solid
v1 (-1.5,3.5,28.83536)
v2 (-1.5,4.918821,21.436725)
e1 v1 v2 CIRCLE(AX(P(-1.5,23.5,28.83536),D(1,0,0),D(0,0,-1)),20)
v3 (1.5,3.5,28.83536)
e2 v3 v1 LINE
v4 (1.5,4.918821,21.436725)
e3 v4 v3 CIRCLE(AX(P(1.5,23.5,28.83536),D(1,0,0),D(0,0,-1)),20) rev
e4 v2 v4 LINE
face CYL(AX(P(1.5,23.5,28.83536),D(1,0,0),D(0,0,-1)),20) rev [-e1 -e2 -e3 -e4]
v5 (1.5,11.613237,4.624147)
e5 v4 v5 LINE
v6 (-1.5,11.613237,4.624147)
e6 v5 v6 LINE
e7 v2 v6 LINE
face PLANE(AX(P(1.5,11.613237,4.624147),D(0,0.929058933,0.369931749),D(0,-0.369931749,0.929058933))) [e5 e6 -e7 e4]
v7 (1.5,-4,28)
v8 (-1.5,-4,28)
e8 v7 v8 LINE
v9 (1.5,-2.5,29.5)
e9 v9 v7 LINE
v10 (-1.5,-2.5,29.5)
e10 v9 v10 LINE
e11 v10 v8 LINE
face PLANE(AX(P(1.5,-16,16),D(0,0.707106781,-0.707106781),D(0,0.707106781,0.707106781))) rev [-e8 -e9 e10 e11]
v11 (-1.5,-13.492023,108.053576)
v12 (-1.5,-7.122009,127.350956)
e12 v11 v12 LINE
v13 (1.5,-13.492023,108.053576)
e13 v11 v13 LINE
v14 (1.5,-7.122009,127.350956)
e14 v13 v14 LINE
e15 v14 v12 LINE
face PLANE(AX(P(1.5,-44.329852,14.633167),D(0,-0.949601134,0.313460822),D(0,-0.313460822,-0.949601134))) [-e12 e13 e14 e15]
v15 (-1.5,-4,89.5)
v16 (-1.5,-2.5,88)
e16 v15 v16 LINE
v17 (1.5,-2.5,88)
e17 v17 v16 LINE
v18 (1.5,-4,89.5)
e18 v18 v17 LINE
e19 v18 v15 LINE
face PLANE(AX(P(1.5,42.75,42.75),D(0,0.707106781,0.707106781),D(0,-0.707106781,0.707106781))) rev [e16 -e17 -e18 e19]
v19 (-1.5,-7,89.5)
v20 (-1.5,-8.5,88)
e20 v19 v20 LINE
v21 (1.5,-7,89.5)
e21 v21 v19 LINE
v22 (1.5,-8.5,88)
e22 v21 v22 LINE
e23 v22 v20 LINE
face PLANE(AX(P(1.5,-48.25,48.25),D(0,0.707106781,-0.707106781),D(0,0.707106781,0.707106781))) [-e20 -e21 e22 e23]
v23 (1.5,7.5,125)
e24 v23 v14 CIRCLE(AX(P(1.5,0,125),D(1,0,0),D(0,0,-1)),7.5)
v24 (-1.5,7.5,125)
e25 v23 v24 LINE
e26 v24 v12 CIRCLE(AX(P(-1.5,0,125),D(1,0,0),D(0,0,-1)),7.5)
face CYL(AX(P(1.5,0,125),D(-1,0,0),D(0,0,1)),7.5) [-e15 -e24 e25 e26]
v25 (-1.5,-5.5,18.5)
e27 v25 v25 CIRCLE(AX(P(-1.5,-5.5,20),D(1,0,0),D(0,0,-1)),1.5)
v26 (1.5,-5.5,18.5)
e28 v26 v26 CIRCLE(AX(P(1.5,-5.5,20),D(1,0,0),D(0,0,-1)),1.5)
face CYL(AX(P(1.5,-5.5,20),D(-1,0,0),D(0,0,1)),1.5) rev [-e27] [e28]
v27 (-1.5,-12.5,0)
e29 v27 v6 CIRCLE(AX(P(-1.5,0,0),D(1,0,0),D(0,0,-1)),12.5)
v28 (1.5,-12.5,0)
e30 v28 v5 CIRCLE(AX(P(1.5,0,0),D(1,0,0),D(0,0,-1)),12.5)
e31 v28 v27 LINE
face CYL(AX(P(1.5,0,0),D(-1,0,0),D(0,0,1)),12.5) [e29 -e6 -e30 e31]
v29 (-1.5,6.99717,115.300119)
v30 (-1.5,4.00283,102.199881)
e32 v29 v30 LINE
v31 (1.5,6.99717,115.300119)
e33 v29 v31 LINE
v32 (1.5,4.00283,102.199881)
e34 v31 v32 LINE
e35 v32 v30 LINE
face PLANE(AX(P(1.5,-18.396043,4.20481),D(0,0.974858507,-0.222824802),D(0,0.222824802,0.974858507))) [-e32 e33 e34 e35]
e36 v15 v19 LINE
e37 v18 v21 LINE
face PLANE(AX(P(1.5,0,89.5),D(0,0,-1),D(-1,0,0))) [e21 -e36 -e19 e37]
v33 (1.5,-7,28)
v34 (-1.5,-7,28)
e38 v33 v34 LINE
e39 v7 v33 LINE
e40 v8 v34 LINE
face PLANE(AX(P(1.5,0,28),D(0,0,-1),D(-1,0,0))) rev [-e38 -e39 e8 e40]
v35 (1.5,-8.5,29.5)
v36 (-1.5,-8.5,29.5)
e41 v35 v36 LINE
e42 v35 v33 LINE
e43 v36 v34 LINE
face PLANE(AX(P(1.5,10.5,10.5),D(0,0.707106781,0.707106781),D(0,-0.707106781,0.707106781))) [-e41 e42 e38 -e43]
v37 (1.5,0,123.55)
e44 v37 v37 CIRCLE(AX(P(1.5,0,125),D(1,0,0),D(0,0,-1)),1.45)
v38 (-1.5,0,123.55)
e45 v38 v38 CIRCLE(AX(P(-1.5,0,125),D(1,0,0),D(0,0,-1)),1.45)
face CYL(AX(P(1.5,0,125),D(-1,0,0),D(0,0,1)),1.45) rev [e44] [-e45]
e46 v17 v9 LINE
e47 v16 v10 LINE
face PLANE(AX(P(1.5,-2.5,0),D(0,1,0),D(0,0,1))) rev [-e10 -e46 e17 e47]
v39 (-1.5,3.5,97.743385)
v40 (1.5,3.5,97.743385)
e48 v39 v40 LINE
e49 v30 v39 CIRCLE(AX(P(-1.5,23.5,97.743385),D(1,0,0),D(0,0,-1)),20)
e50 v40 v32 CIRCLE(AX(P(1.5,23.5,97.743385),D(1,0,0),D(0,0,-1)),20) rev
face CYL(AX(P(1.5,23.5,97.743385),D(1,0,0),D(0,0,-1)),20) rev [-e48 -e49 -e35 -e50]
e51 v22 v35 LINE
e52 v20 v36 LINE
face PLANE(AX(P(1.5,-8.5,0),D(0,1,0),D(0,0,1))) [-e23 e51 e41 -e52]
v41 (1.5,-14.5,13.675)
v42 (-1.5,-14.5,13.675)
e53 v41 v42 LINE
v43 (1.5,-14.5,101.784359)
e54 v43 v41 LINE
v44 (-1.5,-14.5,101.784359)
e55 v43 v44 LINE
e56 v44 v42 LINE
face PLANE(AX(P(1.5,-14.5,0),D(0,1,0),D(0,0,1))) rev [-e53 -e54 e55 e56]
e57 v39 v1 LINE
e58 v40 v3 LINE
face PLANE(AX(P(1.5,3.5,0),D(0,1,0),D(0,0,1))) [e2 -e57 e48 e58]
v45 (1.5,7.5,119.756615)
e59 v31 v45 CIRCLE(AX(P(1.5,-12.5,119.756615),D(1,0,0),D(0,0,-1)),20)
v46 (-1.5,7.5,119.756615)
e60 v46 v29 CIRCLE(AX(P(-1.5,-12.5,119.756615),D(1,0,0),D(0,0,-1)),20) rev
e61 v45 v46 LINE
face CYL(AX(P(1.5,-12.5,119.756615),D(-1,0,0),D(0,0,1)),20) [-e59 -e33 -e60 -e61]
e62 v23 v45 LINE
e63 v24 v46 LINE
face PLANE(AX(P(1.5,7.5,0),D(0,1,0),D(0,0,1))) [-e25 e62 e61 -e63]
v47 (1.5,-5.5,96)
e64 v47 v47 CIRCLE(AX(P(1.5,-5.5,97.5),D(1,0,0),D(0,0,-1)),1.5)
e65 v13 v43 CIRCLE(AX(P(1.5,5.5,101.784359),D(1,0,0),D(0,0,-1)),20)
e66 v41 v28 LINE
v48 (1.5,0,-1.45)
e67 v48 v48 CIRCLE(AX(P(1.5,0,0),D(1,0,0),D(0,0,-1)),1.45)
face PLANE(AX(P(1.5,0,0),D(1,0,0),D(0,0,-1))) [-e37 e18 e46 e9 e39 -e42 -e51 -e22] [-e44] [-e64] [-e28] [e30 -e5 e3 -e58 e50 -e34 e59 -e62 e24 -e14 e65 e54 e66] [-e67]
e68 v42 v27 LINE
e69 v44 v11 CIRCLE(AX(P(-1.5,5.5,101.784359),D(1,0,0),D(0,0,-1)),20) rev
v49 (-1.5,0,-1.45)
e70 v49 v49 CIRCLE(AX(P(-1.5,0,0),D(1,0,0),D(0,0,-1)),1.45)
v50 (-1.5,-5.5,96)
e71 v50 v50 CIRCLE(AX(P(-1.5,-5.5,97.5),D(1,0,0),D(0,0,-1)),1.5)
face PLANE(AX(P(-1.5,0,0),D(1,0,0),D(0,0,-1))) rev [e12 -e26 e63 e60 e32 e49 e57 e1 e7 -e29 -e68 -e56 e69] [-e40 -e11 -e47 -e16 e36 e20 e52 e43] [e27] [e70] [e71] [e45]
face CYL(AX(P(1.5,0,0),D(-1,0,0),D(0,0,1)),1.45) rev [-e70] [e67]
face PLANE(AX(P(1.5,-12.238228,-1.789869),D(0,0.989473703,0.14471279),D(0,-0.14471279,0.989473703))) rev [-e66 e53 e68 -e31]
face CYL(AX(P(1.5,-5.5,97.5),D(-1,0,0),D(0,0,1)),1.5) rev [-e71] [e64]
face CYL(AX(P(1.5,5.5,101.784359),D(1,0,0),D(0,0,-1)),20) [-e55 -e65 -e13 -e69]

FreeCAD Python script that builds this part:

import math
import FreeCAD as App
import Part
import Sketcher

V = App.Vector


def edges_at(feature, points):
    """Names of the edges that pass closest to the given points."""
    edges = feature.Shape.Edges
    near = lambda p: min(range(len(edges)), key=lambda i: edges[i].distToShape(Part.Vertex(*p))[0])
    return sorted({f"Edge{near(p) + 1}" for p in points})

doc = App.newDocument("Part")
body = doc.addObject("PartDesign::Body", "Body")

# Sketch on YZ plane
sketch1 = body.newObject("Sketcher::SketchObject", "Sketch")
sketch1.AttachmentSupport = (doc.getObject("YZ_Plane"), [""])
sketch1.MapMode = "FlatFace"
sketch1.addGeometry([
    Part.LineSegment(V(-7.1, 127.4, 0), V(-14.5, 105, 0)),  # 0
    Part.LineSegment(V(-14.5, 105, 0), V(-14.5, 13.7, 0)),  # 1
    Part.LineSegment(V(-14.5, 13.7, 0), V(-12.5, 0, 0)),  # 2
    Part.ArcOfCircle(Part.Circle(V(0, 0, 0), V(0, 0, 1), 12.5), math.radians(180), math.radians(382)),  # 3
    Part.LineSegment(V(11.6, 4.6, 0), V(3.5, 25, 0)),  # 4
    Part.LineSegment(V(3.5, 25, 0), V(3.5, 100, 0)),  # 5
    Part.LineSegment(V(3.5, 100, 0), V(7.5, 117.5, 0)),  # 6
    Part.LineSegment(V(7.5, 117.5, 0), V(7.5, 125, 0)),  # 7
    Part.ArcOfCircle(Part.Circle(V(0, 125, 0), V(0, 0, 1), 7.5), math.radians(0), math.radians(162)),  # 8
    Part.Circle(V(-5.5, 97.5, 0), V(0, 0, 1), 1.5),  # 9
    Part.LineSegment(V(-8.5, 88, 0), V(-7, 89.5, 0)),  # 10
    Part.LineSegment(V(-7, 89.5, 0), V(-4, 89.5, 0)),  # 11
    Part.LineSegment(V(-4, 89.5, 0), V(-2.5, 88, 0)),  # 12
    Part.LineSegment(V(-2.5, 88, 0), V(-2.5, 29.5, 0)),  # 13
    Part.LineSegment(V(-2.5, 29.5, 0), V(-4, 28, 0)),  # 14
    Part.LineSegment(V(-4, 28, 0), V(-7, 28, 0)),  # 15
    Part.LineSegment(V(-7, 28, 0), V(-8.5, 29.5, 0)),  # 16
    Part.LineSegment(V(-8.5, 29.5, 0), V(-8.5, 88, 0)),  # 17
    Part.Circle(V(-5.5, 20, 0), V(0, 0, 1), 1.5),  # 18
    Part.Circle(V(0, 125, 0), V(0, 0, 1), 1.4),  # 19
    Part.Circle(V(0, 0, 0), V(0, 0, 1), 1.4),  # 20
], False)
sketch1.addConstraint([
    Sketcher.Constraint("Coincident", 0, 2, 1, 1),
    Sketcher.Constraint("Coincident", 1, 2, 2, 1),
    Sketcher.Constraint("Coincident", 2, 2, 3, 1),
    Sketcher.Constraint("Tangent", 3, 2, 4, 1),
    Sketcher.Constraint("Coincident", 4, 2, 5, 1),
    Sketcher.Constraint("Coincident", 5, 2, 6, 1),
    Sketcher.Constraint("Coincident", 6, 2, 7, 1),
    Sketcher.Constraint("Tangent", 7, 2, 8, 1),
    Sketcher.Constraint("Tangent", 8, 2, 0, 1),
    Sketcher.Constraint("Coincident", 10, 2, 11, 1),
    Sketcher.Constraint("Coincident", 11, 2, 12, 1),
    Sketcher.Constraint("Coincident", 12, 2, 13, 1),
    Sketcher.Constraint("Coincident", 13, 2, 14, 1),
    Sketcher.Constraint("Coincident", 14, 2, 15, 1),
    Sketcher.Constraint("Coincident", 15, 2, 16, 1),
    Sketcher.Constraint("Coincident", 16, 2, 17, 1),
    Sketcher.Constraint("Coincident", 17, 2, 10, 1),
    Sketcher.Constraint("Vertical", 1),
    Sketcher.Constraint("Vertical", 5),
    Sketcher.Constraint("Vertical", 7),
    Sketcher.Constraint("Horizontal", 11),
    Sketcher.Constraint("Vertical", 13),
    Sketcher.Constraint("Horizontal", 15),
    Sketcher.Constraint("Vertical", 17),
    Sketcher.Constraint("Coincident", 3, 3, -1, 1),
    Sketcher.Constraint("Coincident", 20, 3, -1, 1),
    Sketcher.Constraint("Coincident", 19, 3, 8, 3),
    Sketcher.Constraint("Equal", 9, 18),
    Sketcher.Constraint("Equal", 19, 20),
    Sketcher.Constraint("PointOnObject", 8, 3, -2),
    Sketcher.Constraint("PointOnObject", 2, 2, -1),
    Sketcher.Constraint("Perpendicular", 10, 12),
    Sketcher.Constraint("Perpendicular", 12, 14),
    Sketcher.Constraint("Perpendicular", 14, 16),
    Sketcher.Constraint("Horizontal", 13, 2, 16, 2),
    Sketcher.Constraint("Horizontal", 12, 2, 17, 2),
    Sketcher.Constraint("Vertical", 9, 3, 18, 3),
    Sketcher.Constraint("Vertical", 11, 2, 14, 2),
    Sketcher.Constraint("Vertical", 10, 2, 15, 2),
    Sketcher.Constraint("Diameter", 9, 3.0),
    Sketcher.Constraint("Diameter", 19, 2.9),
    Sketcher.Constraint("Radius", 3, 12.5),
    Sketcher.Constraint("Radius", 8, 7.5),
    Sketcher.Constraint("DistanceX", 11, 1, 11, 2, 3.0),
    Sketcher.Constraint("DistanceY", 5, 1, 5, 2, 75.0),
    Sketcher.Constraint("DistanceY", 7, 1, 7, 2, 7.5),
    Sketcher.Constraint("DistanceY", 13, 2, 13, 1, 58.5),
    Sketcher.Constraint("DistanceY", -1, 1, 8, 3, 125.0),
    Sketcher.Constraint("DistanceY", -1, 1, 18, 3, 20.0),
    Sketcher.Constraint("DistanceY", -1, 1, 0, 2, 105.0),
    Sketcher.Constraint("DistanceY", -1, 1, 4, 2, 25.0),
    Sketcher.Constraint("DistanceX", 10, 2, -1, 1, 7.0),
    Sketcher.Constraint("DistanceY", -1, 1, 12, 2, 88.0),
    Sketcher.Constraint("DistanceY", -1, 1, 14, 2, 28.0),
    Sketcher.Constraint("DistanceX", 0, 2, 9, 3, 9.0),
    Sketcher.Constraint("DistanceX", 1, 2, 2, 2, 2.0),
    Sketcher.Constraint("DistanceX", 18, 3, 4, 2, 9.0),
    Sketcher.Constraint("DistanceY", 9, 3, 6, 2, 20.0),
    Sketcher.Constraint("DistanceY", 1, 2, 1, 1, 91.325),
])
pad1 = body.newObject("PartDesign::Pad", "Pad")
pad1.Profile = sketch1
pad1.Length = 3
pad1.Midplane = True
doc.recompute()

fillet = body.newObject("PartDesign::Fillet", "Fillet")
fillet.Base = (pad1, edges_at(pad1, [
    (0, -14.5, 105),
    (0, 7.5, 117.5),
    (0, 3.5, 100),
    (0, 3.5, 25),
]))
fillet.Radius = 20

doc.recompute()
